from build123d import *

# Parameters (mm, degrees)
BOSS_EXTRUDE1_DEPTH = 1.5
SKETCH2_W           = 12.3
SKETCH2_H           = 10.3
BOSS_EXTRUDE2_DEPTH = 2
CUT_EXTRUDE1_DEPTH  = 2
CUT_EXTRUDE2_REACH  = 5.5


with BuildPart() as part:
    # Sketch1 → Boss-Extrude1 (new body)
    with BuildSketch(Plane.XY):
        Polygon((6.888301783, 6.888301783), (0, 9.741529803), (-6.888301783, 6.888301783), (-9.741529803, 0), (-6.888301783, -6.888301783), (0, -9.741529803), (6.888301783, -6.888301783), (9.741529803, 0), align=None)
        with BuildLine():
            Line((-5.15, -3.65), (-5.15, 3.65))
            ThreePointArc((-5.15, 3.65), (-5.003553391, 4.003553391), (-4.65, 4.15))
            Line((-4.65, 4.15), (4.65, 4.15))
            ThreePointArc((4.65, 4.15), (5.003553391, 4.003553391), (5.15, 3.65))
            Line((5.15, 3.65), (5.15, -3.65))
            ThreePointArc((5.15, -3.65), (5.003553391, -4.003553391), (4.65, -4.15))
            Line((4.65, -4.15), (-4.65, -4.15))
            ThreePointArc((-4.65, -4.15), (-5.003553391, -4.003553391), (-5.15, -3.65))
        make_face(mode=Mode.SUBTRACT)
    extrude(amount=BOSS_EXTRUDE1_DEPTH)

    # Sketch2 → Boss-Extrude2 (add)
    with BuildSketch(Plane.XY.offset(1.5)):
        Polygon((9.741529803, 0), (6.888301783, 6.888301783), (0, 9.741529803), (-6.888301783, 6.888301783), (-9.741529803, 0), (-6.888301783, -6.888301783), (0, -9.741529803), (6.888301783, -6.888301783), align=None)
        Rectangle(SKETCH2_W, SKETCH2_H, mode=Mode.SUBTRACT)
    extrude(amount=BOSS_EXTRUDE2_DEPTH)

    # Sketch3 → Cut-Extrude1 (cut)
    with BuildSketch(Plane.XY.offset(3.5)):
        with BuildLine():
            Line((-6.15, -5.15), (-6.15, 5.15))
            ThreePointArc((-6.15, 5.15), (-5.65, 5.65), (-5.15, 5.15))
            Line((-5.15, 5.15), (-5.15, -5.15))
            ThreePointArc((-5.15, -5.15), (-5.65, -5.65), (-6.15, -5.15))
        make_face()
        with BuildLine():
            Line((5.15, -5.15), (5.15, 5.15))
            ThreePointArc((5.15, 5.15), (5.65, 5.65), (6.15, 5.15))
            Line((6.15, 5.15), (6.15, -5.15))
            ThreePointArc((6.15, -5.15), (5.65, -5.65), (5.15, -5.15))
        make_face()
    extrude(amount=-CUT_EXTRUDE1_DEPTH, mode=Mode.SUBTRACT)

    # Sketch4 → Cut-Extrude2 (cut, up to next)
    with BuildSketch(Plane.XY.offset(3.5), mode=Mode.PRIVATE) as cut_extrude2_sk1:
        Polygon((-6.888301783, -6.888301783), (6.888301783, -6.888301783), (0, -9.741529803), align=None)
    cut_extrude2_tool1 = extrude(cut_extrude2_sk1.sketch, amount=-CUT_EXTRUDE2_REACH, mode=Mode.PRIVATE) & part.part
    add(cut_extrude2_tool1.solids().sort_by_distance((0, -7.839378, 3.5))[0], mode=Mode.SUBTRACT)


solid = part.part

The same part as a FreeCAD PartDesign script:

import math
import FreeCAD as App
import Part
import Sketcher
from FreeCAD import Vector
Q = App.Units.Quantity


def add_polygon(sketch, points):
    """Adds a closed chain of lines whose ends are joined by coincident constraints."""
    first, n = sketch.GeometryCount, len(points)
    for a, b in zip(points, points[1:] + points[:1]):
        sketch.addGeometry(Part.LineSegment(App.Vector(*a, 0), App.Vector(*b, 0)), False)
    for i in range(n):
        sketch.addConstraint(Sketcher.Constraint("Coincident", first + i, 2, first + (i + 1) % n, 1))

doc = App.newDocument("Part")
params = doc.addObject("Spreadsheet::Sheet", "Params")
for row, (alias, value) in enumerate([
    ("sketch1_radius", "0.5 mm"),
    ("sketch1_width", "9.3 mm"),
    ("sketch1_height", "7.3 mm"),
    ("pad1_length", "1.5 mm"),
    ("sketch2_width", "12.3 mm"),
    ("sketch2_height", "10.3 mm"),
    ("pad2_length", "2 mm"),
    ("sketch3_radius", "0.5 mm"),
    ("sketch3_height", "10.3 mm"),
    ("pocket1_length", "2 mm"),
], start=1):
    params.set(f"A{row}", alias)
    params.set(f"B{row}", "=" + value)
    params.setAlias(f"B{row}", alias)

body = doc.addObject("PartDesign::Body", "Body")

# Sketch on XY plane
sketch1 = body.newObject("Sketcher::SketchObject", "Sketch")
sketch1.AttachmentSupport = (doc.getObject("XY_Plane"), [""])
sketch1.MapMode = "FlatFace"
add_polygon(sketch1, [(6.888302, 6.888302), (0, 9.74153), (-6.888302, 6.888302), (-9.74153, 0), (-6.888302, -6.888302), (0, -9.74153), (6.888302, -6.888302), (9.74153, 0)])  # lines 0-7
sketch1.addGeometry(Part.ArcOfCircle(Part.Circle(Vector(-4.65, -3.65, 0), Vector(0, 0, 1), 0.5), math.radians(180), math.radians(270)), False)  # 8
sketch1.addGeometry(Part.LineSegment(Vector(-5.15, -3.65, 0), Vector(-5.15, 3.65, 0)), False)  # 9
sketch1.addGeometry(Part.ArcOfCircle(Part.Circle(Vector(-4.65, 3.65, 0), Vector(0, 0, 1), 0.5), math.radians(90), math.radians(180)), False)  # 10
sketch1.addGeometry(Part.LineSegment(Vector(-4.65, 4.15, 0), Vector(4.65, 4.15, 0)), False)  # 11
sketch1.addGeometry(Part.ArcOfCircle(Part.Circle(Vector(4.65, 3.65, 0), Vector(0, 0, 1), 0.5), math.radians(0), math.radians(90)), False)  # 12
sketch1.addGeometry(Part.LineSegment(Vector(5.15, 3.65, 0), Vector(5.15, -3.65, 0)), False)  # 13
sketch1.addGeometry(Part.ArcOfCircle(Part.Circle(Vector(4.65, -3.65, 0), Vector(0, 0, 1), 0.5), math.radians(-90), math.radians(0)), False)  # 14
sketch1.addGeometry(Part.LineSegment(Vector(4.65, -4.15, 0), Vector(-4.65, -4.15, 0)), False)  # 15
sketch1.addConstraint([
    Sketcher.Constraint("Tangent", 8, 1, 9, 1),
    Sketcher.Constraint("Tangent", 9, 2, 10, 2),
    Sketcher.Constraint("Tangent", 10, 1, 11, 1),
    Sketcher.Constraint("Tangent", 11, 2, 12, 2),
    Sketcher.Constraint("Tangent", 12, 1, 13, 1),
    Sketcher.Constraint("Tangent", 13, 2, 14, 2),
    Sketcher.Constraint("Tangent", 14, 1, 15, 1),
    Sketcher.Constraint("Tangent", 15, 2, 8, 2),
    Sketcher.Constraint("Vertical", 9),
    Sketcher.Constraint("Horizontal", 11),
    Sketcher.Constraint("Vertical", 13),
    Sketcher.Constraint("Horizontal", 15),
    Sketcher.Constraint("Equal", 8, 10),
    Sketcher.Constraint("Equal", 10, 12),
    Sketcher.Constraint("Equal", 12, 14),
    Sketcher.Constraint("Symmetric", 8, 3, 12, 3, -1, 1),
    Sketcher.Constraint("Symmetric", 0, 2, 4, 2, -1, 1),
    Sketcher.Constraint("Symmetric", 1, 2, 5, 2, -1, 1),
    Sketcher.Constraint("Symmetric", 2, 2, 6, 2, -1, 1),
    Sketcher.Constraint("Symmetric", 3, 2, 7, 2, -1, 1),
    Sketcher.Constraint("Symmetric", 3, 2, 5, 2, -2),
    Sketcher.Constraint("PointOnObject", 0, 2, -2),
    Sketcher.Constraint("PointOnObject", 2, 2, -1),
    Sketcher.Constraint("Perpendicular", 0, 2),
    Sketcher.Constraint("Equal", 1, 2),
    Sketcher.Constraint("Radius", 8, 0.5),
    Sketcher.Constraint("DistanceX", 11, 1, 11, 2, 9.3),
    Sketcher.Constraint("DistanceY", 9, 1, 9, 2, 7.3),
    Sketcher.Constraint("Angle", 0, Q("157.5 deg")),
    Sketcher.Constraint("DistanceX", 1, 2, -1, 1, 6.888302),
])
sketch1.setExpression("Constraints[33]", "Params.sketch1_radius")
sketch1.setExpression("Constraints[34]", "Params.sketch1_width")
sketch1.setExpression("Constraints[35]", "Params.sketch1_height")
pad1 = body.newObject("PartDesign::Pad", "Pad")
pad1.Profile = sketch1
pad1.setExpression("Length", "Params.pad1_length")

# Sketch on XY plane
sketch2 = body.newObject("Sketcher::SketchObject", "Sketch001")
sketch2.AttachmentSupport = (doc.getObject("XY_Plane"), [""])
sketch2.MapMode = "FlatFace"
sketch2.AttachmentOffset = App.Placement(Vector(0, 0, 1.5), App.Rotation())
add_polygon(sketch2, [(9.74153, 0), (6.888302, 6.888302), (0, 9.74153), (-6.888302, 6.888302), (-9.74153, 0), (-6.888302, -6.888302), (0, -9.74153), (6.888302, -6.888302)])  # lines 0-7
add_polygon(sketch2, [(6.15, -5.15), (-6.15, -5.15), (-6.15, 5.15), (6.15, 5.15)])  # lines 8-11
sketch2.addConstraint([
    Sketcher.Constraint("Horizontal", 8),
    Sketcher.Constraint("Vertical", 9),
    Sketcher.Constraint("Horizontal", 10),
    Sketcher.Constraint("Vertical", 11),
    Sketcher.Constraint("Symmetric", 0, 2, 4, 2, -1, 1),
    Sketcher.Constraint("Symmetric", 1, 2, 5, 2, -1, 1),
    Sketcher.Constraint("Symmetric", 2, 2, 6, 2, -1, 1),
    Sketcher.Constraint("Symmetric", 3, 2, 7, 2, -1, 1),
    Sketcher.Constraint("Symmetric", 8, 2, 10, 2, -1, 1),
    Sketcher.Constraint("Symmetric", 0, 2, 2, 2, -2),
    Sketcher.Constraint("PointOnObject", 1, 2, -2),
    Sketcher.Constraint("PointOnObject", 3, 2, -1),
    Sketcher.Constraint("Perpendicular", 0, 2),
    Sketcher.Constraint("Equal", 0, 1),
    Sketcher.Constraint("DistanceX", 8, 2, 8, 1, 12.3),
    Sketcher.Constraint("DistanceY", 9, 1, 9, 2, 10.3),
    Sketcher.Constraint("Angle", 0, Q("112.5 deg")),
    Sketcher.Constraint("DistanceX", -1, 1, 0, 2, 6.888302),
])
sketch2.setExpression("Constraints[26]", "Params.sketch2_width")
sketch2.setExpression("Constraints[27]", "Params.sketch2_height")
pad2 = body.newObject("PartDesign::Pad", "Pad001")
pad2.Profile = sketch2
pad2.setExpression("Length", "Params.pad2_length")

# Sketch on XY plane
sketch3 = body.newObject("Sketcher::SketchObject", "Sketch002")
sketch3.AttachmentSupport = (doc.getObject("XY_Plane"), [""])
sketch3.MapMode = "FlatFace"
sketch3.AttachmentOffset = App.Placement(Vector(0, 0, 3.5), App.Rotation())
sketch3.addGeometry([
    Part.LineSegment(Vector(-6.15, 5.15, 0), Vector(-6.15, -5.15, 0)),  # 0
    Part.ArcOfCircle(Part.Circle(Vector(-5.65, -5.15, 0), Vector(0, 0, 1), 0.5), math.radians(180), math.radians(360)),  # 1
    Part.LineSegment(Vector(-5.15, -5.15, 0), Vector(-5.15, 5.15, 0)),  # 2
    Part.ArcOfCircle(Part.Circle(Vector(-5.65, 5.15, 0), Vector(0, 0, 1), 0.5), math.radians(0), math.radians(180)),  # 3
    Part.LineSegment(Vector(5.15, 5.15, 0), Vector(5.15, -5.15, 0)),  # 4
    Part.ArcOfCircle(Part.Circle(Vector(5.65, -5.15, 0), Vector(0, 0, 1), 0.5), math.radians(180), math.radians(360)),  # 5
    Part.LineSegment(Vector(6.15, -5.15, 0), Vector(6.15, 5.15, 0)),  # 6
    Part.ArcOfCircle(Part.Circle(Vector(5.65, 5.15, 0), Vector(0, 0, 1), 0.5), math.radians(0), math.radians(180)),  # 7
], False)
sketch3.addConstraint([
    Sketcher.Constraint("Tangent", 0, 2, 1, 1),
    Sketcher.Constraint("Tangent", 1, 2, 2, 1),
    Sketcher.Constraint("Tangent", 2, 2, 3, 1),
    Sketcher.Constraint("Tangent", 3, 2, 0, 1),
    Sketcher.Constraint("Tangent", 4, 2, 5, 1),
    Sketcher.Constraint("Tangent", 5, 2, 6, 1),
    Sketcher.Constraint("Tangent", 6, 2, 7, 1),
    Sketcher.Constraint("Tangent", 7, 2, 4, 1),
    Sketcher.Constraint("Vertical", 0),
    Sketcher.Constraint("Vertical", 2),
    Sketcher.Constraint("Vertical", 4),
    Sketcher.Constraint("Vertical", 6),
    Sketcher.Constraint("Equal", 3, 5),
    Sketcher.Constraint("Symmetric", 3, 3, 5, 3, -1, 1),
    Sketcher.Constraint("Horizontal", 1, 3, 5, 3),
    Sketcher.Constraint("Horizontal", 3, 3, 7, 3),
    Sketcher.Constraint("Radius", 1, 0.5),
    Sketcher.Constraint("DistanceY", 0, 2, 0, 1, 10.3),
    Sketcher.Constraint("DistanceX", 1, 3, 5, 3, 11.3),
])
sketch3.setExpression("Constraints[16]", "Params.sketch3_radius")
sketch3.setExpression("Constraints[17]", "Params.sketch3_height")
pocket1 = body.newObject("PartDesign::Pocket", "Pocket")
pocket1.Profile = sketch3
pocket1.setExpression("Length", "Params.pocket1_length")

# Sketch on XY plane
sketch4 = body.newObject("Sketcher::SketchObject", "Sketch003")
sketch4.AttachmentSupport = (doc.getObject("XY_Plane"), [""])
sketch4.MapMode = "FlatFace"
sketch4.AttachmentOffset = App.Placement(Vector(0, 0, 3.5), App.Rotation())
add_polygon(sketch4, [(6.888302, -6.888302), (-6.888302, -6.888302), (0, -9.74153)])  # lines 0-2
sketch4.addConstraint([
    Sketcher.Constraint("Horizontal", 0),
    Sketcher.Constraint("PointOnObject", 1, 2, -2),
    Sketcher.Constraint("Equal", 1, 2),
    Sketcher.Constraint("Angle", 1, Q("-22.5 deg")),
    Sketcher.Constraint("DistanceX", 0, 2, -1, 1, 6.888302),
    Sketcher.Constraint("DistanceY", 0, 2, -1, 1, 6.888302),
])
pocket2 = body.newObject("PartDesign::Pocket", "Pocket001")
pocket2.Profile = sketch4
pocket2.Type = "UpToFirst"

doc.recompute()
